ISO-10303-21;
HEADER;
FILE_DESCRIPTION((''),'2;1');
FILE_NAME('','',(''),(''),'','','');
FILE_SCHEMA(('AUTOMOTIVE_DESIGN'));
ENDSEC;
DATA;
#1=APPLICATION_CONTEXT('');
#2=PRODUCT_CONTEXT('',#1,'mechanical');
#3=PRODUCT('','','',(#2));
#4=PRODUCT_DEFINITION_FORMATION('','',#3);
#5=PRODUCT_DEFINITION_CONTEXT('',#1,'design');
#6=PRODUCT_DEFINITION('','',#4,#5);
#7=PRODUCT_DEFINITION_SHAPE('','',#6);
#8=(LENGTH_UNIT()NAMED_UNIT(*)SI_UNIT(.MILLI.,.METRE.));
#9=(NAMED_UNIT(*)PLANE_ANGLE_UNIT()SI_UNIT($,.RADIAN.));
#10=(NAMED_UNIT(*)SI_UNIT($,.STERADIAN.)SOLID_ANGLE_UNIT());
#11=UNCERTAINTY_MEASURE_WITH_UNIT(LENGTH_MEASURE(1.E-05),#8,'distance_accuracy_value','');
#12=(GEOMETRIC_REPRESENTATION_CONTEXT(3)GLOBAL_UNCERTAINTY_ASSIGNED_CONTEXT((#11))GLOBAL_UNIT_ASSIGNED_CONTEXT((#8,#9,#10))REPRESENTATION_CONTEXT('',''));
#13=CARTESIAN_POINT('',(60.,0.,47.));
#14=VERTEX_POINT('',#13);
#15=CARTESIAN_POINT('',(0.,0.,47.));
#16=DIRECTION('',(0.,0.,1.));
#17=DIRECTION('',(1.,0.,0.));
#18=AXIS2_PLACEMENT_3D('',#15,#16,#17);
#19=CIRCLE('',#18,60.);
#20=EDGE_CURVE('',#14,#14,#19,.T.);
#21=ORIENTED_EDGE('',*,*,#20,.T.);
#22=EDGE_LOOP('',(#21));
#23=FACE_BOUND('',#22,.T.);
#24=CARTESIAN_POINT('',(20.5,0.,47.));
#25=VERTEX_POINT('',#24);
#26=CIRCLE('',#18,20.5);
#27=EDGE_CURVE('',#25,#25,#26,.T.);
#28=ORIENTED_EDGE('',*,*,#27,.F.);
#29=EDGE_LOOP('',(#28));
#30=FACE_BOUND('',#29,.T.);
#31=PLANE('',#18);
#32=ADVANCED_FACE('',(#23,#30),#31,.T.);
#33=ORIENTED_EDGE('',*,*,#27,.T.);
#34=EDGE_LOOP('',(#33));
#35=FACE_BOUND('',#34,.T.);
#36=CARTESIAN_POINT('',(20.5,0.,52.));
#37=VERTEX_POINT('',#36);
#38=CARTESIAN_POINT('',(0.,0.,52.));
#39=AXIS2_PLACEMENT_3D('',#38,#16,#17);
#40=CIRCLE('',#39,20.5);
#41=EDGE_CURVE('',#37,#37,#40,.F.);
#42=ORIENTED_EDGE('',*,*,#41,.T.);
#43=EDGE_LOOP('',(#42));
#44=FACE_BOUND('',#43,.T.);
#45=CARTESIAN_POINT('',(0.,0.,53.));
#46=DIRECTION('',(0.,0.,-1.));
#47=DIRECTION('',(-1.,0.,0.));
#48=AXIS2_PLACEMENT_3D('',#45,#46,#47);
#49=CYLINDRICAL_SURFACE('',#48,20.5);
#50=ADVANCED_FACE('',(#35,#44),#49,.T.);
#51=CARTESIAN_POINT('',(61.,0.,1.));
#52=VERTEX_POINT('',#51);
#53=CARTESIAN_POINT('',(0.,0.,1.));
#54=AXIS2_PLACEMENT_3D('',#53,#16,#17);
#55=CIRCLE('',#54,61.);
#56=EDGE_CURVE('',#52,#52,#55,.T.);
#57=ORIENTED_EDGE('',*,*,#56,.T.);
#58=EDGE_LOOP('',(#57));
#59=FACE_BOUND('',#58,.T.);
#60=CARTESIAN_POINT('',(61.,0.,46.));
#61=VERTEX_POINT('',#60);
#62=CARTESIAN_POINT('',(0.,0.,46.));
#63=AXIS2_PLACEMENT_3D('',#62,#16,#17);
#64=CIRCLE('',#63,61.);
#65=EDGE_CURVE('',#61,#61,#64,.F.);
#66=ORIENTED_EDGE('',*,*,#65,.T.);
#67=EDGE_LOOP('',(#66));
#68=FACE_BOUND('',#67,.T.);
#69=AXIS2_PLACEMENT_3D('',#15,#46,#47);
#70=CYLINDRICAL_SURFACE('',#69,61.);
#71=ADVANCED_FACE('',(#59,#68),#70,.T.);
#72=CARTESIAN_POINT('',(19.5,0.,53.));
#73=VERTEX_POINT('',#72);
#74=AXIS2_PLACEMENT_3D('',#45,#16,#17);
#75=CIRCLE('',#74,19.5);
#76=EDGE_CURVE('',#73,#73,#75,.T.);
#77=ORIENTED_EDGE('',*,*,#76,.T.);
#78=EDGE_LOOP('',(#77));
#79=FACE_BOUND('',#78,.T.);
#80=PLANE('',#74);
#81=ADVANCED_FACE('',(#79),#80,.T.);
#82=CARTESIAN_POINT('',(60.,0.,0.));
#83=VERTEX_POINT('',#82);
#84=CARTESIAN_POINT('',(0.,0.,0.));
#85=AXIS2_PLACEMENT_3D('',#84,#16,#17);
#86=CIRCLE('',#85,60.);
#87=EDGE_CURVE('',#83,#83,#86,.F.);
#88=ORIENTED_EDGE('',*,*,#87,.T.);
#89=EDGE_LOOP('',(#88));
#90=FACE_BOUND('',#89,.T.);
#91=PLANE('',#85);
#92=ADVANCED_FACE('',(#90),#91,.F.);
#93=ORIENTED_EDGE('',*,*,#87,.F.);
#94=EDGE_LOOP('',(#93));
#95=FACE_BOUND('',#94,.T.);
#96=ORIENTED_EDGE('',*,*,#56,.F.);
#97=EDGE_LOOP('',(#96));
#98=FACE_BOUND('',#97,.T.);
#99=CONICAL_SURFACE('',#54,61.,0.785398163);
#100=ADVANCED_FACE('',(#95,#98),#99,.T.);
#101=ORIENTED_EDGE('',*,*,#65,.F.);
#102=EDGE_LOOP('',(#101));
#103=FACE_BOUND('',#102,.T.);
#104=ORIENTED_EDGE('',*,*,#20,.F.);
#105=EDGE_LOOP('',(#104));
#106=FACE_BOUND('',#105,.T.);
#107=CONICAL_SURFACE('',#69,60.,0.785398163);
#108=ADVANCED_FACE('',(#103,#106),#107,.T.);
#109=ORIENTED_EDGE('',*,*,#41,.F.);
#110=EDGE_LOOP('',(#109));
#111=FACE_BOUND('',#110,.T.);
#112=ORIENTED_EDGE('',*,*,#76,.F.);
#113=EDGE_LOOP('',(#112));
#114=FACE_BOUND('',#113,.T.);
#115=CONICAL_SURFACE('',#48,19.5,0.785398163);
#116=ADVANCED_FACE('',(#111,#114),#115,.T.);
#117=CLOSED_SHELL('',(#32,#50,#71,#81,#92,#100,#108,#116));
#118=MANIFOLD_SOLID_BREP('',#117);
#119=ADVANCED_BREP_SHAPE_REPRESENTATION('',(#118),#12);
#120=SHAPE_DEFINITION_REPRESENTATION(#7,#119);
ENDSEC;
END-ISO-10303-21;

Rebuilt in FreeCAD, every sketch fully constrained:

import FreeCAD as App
import Part
import Sketcher


def edges_at(feature, points):
    """Names of the edges that pass closest to the given points."""
    edges = feature.Shape.Edges
    near = lambda p: min(range(len(edges)), key=lambda i: edges[i].distToShape(Part.Vertex(*p))[0])
    return sorted({f"Edge{near(p) + 1}" for p in points})

doc = App.newDocument("Part")
body = doc.addObject("PartDesign::Body", "Body")

sketch1 = doc.addObject("Sketcher::SketchObject", "Sketch")
body.addObject(sketch1)
sketch1.AttachmentSupport = (doc.XY_Plane, [""])
sketch1.MapMode = "FlatFace"
sketch1.addGeometry(Part.Circle(App.Vector(0, 0, 0), App.Vector(0, 0, 1), 61), False)
sketch1.addConstraint(Sketcher.Constraint("Coincident", 0, 3, -1, 1))
sketch1.addConstraint(Sketcher.Constraint("Diameter", 0, 122.0))
pad1 = doc.addObject("PartDesign::Pad", "Pad")
body.addObject(pad1)
pad1.Profile = sketch1
pad1.Length = 47

sketch2 = doc.addObject("Sketcher::SketchObject", "Sketch001")
body.addObject(sketch2)
sketch2.AttachmentSupport = (doc.XY_Plane, [""])
sketch2.MapMode = "FlatFace"
sketch2.AttachmentOffset = App.Placement(App.Vector(0, 0, 47), App.Rotation())
sketch2.addGeometry(Part.Circle(App.Vector(0, 0, 0), App.Vector(0, 0, 1), 20.5), False)
sketch2.addConstraint(Sketcher.Constraint("Coincident", 0, 3, -1, 1))
sketch2.addConstraint(Sketcher.Constraint("Diameter", 0, 41.0))
pad2 = doc.addObject("PartDesign::Pad", "Pad001")
body.addObject(pad2)
pad2.Profile = sketch2
pad2.Length = 6
doc.recompute()

chamfer = doc.addObject("PartDesign::Chamfer", "Chamfer")
body.addObject(chamfer)
chamfer.Base = (pad2, edges_at(pad2, [(-61, 0, 0), (-61, 0, 47), (-20.5, 0, 53)]))
chamfer.Size = 1

doc.recompute()
